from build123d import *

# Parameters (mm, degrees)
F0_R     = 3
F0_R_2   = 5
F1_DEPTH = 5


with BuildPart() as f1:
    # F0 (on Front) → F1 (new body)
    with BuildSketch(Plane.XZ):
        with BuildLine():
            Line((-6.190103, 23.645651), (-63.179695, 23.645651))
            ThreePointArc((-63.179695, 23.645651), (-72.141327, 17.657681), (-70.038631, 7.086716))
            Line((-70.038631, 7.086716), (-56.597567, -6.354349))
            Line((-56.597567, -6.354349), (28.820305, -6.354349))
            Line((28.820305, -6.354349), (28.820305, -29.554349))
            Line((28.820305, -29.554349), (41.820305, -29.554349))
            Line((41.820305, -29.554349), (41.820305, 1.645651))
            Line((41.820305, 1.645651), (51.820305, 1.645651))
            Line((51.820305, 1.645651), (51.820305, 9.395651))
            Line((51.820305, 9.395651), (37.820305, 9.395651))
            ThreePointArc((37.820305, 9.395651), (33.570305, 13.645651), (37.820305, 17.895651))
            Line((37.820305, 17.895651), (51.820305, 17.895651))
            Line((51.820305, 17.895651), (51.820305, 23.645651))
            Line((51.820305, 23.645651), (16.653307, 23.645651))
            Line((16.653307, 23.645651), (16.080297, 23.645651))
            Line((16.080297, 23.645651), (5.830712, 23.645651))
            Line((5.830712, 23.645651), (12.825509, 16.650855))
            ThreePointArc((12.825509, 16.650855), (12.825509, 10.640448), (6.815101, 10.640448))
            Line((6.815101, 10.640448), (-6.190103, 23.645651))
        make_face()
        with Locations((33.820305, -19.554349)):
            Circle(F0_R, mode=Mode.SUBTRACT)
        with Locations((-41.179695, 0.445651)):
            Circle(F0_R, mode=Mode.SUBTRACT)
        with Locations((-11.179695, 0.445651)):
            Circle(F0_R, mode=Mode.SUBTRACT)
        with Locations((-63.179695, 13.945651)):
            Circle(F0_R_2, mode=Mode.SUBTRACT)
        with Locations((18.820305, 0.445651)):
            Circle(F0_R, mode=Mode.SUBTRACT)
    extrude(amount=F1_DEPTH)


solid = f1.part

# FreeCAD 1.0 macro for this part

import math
import FreeCAD as App
import Part
import Sketcher
from FreeCAD import Vector
Q = App.Units.Quantity

doc = App.newDocument("Part")
params = doc.addObject("Spreadsheet::Sheet", "Params")
for row, (alias, value) in enumerate([
    ("sketch1_diameter", "6 mm"),
    ("sketch1_diameter2", "10 mm"),
    ("sketch1_radius", "9.699999 mm"),
    ("sketch1_width", "13 mm"),
    ("sketch1_width2", "10 mm"),
    ("pad1_length", "5 mm"),
], start=1):
    params.set(f"A{row}", alias)
    params.set(f"B{row}", "=" + value)
    params.setAlias(f"B{row}", alias)

body = doc.addObject("PartDesign::Body", "Body")

# Sketch on XZ plane
sketch1 = body.newObject("Sketcher::SketchObject", "Sketch")
sketch1.AttachmentSupport = (doc.getObject("XZ_Plane"), [""])
sketch1.MapMode = "FlatFace"
sketch1.addGeometry([
    Part.LineSegment(Vector(-6.2, 23.6, 0), Vector(-63.2, 23.6, 0)),  # 0
    Part.ArcOfCircle(Part.Circle(Vector(-63.2, 13.9, 0), Vector(0, 0, 1), 9.7), math.radians(90), math.radians(225)),  # 1
    Part.LineSegment(Vector(-70, 7.1, 0), Vector(-56.6, -6.4, 0)),  # 2
    Part.LineSegment(Vector(-56.6, -6.4, 0), Vector(28.8, -6.4, 0)),  # 3
    Part.LineSegment(Vector(28.8, -6.4, 0), Vector(28.8, -29.6, 0)),  # 4
    Part.LineSegment(Vector(28.8, -29.6, 0), Vector(41.8, -29.6, 0)),  # 5
    Part.LineSegment(Vector(41.8, -29.6, 0), Vector(41.8, 1.6, 0)),  # 6
    Part.LineSegment(Vector(41.8, 1.6, 0), Vector(51.8, 1.6, 0)),  # 7
    Part.LineSegment(Vector(51.8, 1.6, 0), Vector(51.8, 9.4, 0)),  # 8
    Part.LineSegment(Vector(51.8, 9.4, 0), Vector(37.8, 9.4, 0)),  # 9
    Part.ArcOfCircle(Part.Circle(Vector(37.8, 13.6, 0), Vector(0, 0, 1), 4.2), math.radians(90), math.radians(270)),  # 10
    Part.LineSegment(Vector(37.8, 17.9, 0), Vector(51.8, 17.9, 0)),  # 11
    Part.LineSegment(Vector(51.8, 17.9, 0), Vector(51.8, 23.6, 0)),  # 12
    Part.LineSegment(Vector(51.8, 23.6, 0), Vector(5.8, 23.6, 0)),  # 13
    Part.LineSegment(Vector(5.8, 23.6, 0), Vector(12.8, 16.7, 0)),  # 14
    Part.ArcOfCircle(Part.Circle(Vector(9.8, 13.6, 0), Vector(0, 0, 1), 4.2), math.radians(-135), math.radians(45)),  # 15
    Part.LineSegment(Vector(6.8, 10.6, 0), Vector(-6.2, 23.6, 0)),  # 16
    Part.Circle(Vector(33.8, -19.6, 0), Vector(0, 0, 1), 3),  # 17
    Part.Circle(Vector(-41.2, 0.4, 0), Vector(0, 0, 1), 3),  # 18
    Part.Circle(Vector(-63.2, 13.9, 0), Vector(0, 0, 1), 5),  # 19
    Part.Circle(Vector(-11.2, 0.4, 0), Vector(0, 0, 1), 3),  # 20
    Part.Circle(Vector(18.8, 0.4, 0), Vector(0, 0, 1), 3),  # 21
], False)
sketch1.addConstraint([
    Sketcher.Constraint("Tangent", 0, 2, 1, 1),
    Sketcher.Constraint("Tangent", 1, 2, 2, 1),
    Sketcher.Constraint("Coincident", 2, 2, 3, 1),
    Sketcher.Constraint("Coincident", 3, 2, 4, 1),
    Sketcher.Constraint("Coincident", 4, 2, 5, 1),
    Sketcher.Constraint("Coincident", 5, 2, 6, 1),
    Sketcher.Constraint("Coincident", 6, 2, 7, 1),
    Sketcher.Constraint("Coincident", 7, 2, 8, 1),
    Sketcher.Constraint("Coincident", 8, 2, 9, 1),
    Sketcher.Constraint("Tangent", 9, 2, 10, 2),
    Sketcher.Constraint("Tangent", 10, 1, 11, 1),
    Sketcher.Constraint("Coincident", 11, 2, 12, 1),
    Sketcher.Constraint("Coincident", 12, 2, 13, 1),
    Sketcher.Constraint("Coincident", 13, 2, 14, 1),
    Sketcher.Constraint("Tangent", 14, 2, 15, 2),
    Sketcher.Constraint("Tangent", 15, 1, 16, 1),
    Sketcher.Constraint("Coincident", 16, 2, 0, 1),
    Sketcher.Constraint("Horizontal", 0),
    Sketcher.Constraint("Horizontal", 3),
    Sketcher.Constraint("Vertical", 4),
    Sketcher.Constraint("Horizontal", 5),
    Sketcher.Constraint("Vertical", 6),
    Sketcher.Constraint("Horizontal", 7),
    Sketcher.Constraint("Vertical", 8),
    Sketcher.Constraint("Horizontal", 9),
    Sketcher.Constraint("Horizontal", 11),
    Sketcher.Constraint("Vertical", 12),
    Sketcher.Constraint("Horizontal", 13),
    Sketcher.Constraint("Coincident", 19, 3, 1, 3),
    Sketcher.Constraint("Equal", 10, 15),
    Sketcher.Constraint("Equal", 17, 18),
    Sketcher.Constraint("Equal", 18, 20),
    Sketcher.Constraint("Equal", 20, 21),
    Sketcher.Constraint("Parallel", 2, 14),
    Sketcher.Constraint("Parallel", 14, 16),
    Sketcher.Constraint("Horizontal", 10, 3, 15, 3),
    Sketcher.Constraint("Horizontal", 18, 3, 20, 3),
    Sketcher.Constraint("Horizontal", 20, 3, 21, 3),
    Sketcher.Constraint("Horizontal", 0, 2, 12, 2),
    Sketcher.Constraint("Vertical", 8, 2, 11, 2),
    Sketcher.Constraint("Diameter", 17, Q("6 mm")),
    Sketcher.Constraint("Diameter", 19, Q("10 mm")),
    Sketcher.Constraint("Radius", 1, Q("9.699999 mm")),
    Sketcher.Constraint("DistanceX", 5, 1, 5, 2, Q("13 mm")),
    Sketcher.Constraint("DistanceX", 7, 1, 7, 2, Q("10 mm")),
    Sketcher.Constraint("DistanceX", 9, 2, 9, 1, Q("14 mm")),
    Sketcher.Constraint("Angle", 2, Q("-45.000002 deg")),
    Sketcher.Constraint("Radius", 10, Q("4.25 mm")),
    Sketcher.Constraint("DistanceY", 4, 2, 4, 1, Q("23.2 mm")),
    Sketcher.Constraint("DistanceY", 6, 1, 6, 2, Q("31.2 mm")),
    Sketcher.Constraint("DistanceX", 1, 3, 10, 3, Q("101.000001 mm")),
    Sketcher.Constraint("DistanceX", 15, 3, 10, 3, Q("28 mm")),
    Sketcher.Constraint("DistanceX", 17, 3, 10, 3, Q("4 mm")),
    Sketcher.Constraint("DistanceX", 1, 3, 18, 3, Q("22.000001 mm")),
    Sketcher.Constraint("DistanceY", 17, 3, 18, 3, Q("20 mm")),
    Sketcher.Constraint("DistanceX", 20, 3, 15, 3, Q("21 mm")),
    Sketcher.Constraint("DistanceX", 15, 3, 21, 3, Q("9 mm")),
    Sketcher.Constraint("DistanceY", 15, 3, 0, 2, Q("10 mm")),
    Sketcher.Constraint("DistanceY", 2, 2, 0, 2, Q("30 mm")),
    Sketcher.Constraint("DistanceY", 4, 2, 17, 3, Q("10 mm")),
    Sketcher.Constraint("DistanceX", -1, 1, 15, 1, Q("6.815101 mm")),
    Sketcher.Constraint("DistanceY", -1, 1, 1, 3, Q("13.945652 mm")),
])
sketch1.setExpression("Constraints[40]", "Params.sketch1_diameter")
sketch1.setExpression("Constraints[41]", "Params.sketch1_diameter2")
sketch1.setExpression("Constraints[42]", "Params.sketch1_radius")
sketch1.setExpression("Constraints[43]", "Params.sketch1_width")
sketch1.setExpression("Constraints[44]", "Params.sketch1_width2")
pad1 = body.newObject("PartDesign::Pad", "Pad")
pad1.Profile = sketch1
pad1.setExpression("Length", "Params.pad1_length")

doc.recompute()
